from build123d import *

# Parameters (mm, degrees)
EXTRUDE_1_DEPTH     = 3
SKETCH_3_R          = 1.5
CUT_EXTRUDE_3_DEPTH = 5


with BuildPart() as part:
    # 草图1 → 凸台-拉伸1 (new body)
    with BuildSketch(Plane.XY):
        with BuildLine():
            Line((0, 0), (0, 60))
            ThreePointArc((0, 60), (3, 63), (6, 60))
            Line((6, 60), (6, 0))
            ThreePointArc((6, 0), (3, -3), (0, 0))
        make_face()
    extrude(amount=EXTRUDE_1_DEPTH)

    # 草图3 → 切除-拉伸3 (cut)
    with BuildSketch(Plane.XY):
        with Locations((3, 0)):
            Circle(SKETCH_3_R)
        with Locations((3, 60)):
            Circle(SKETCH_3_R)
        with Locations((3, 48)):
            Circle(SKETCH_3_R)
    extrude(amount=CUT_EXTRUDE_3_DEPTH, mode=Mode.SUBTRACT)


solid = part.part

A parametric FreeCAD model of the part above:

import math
import FreeCAD as App
import Part
import Sketcher
from FreeCAD import Vector

doc = App.newDocument("Part")
body = doc.addObject("PartDesign::Body", "Body")

# Sketch on XY plane
sketch1 = body.newObject("Sketcher::SketchObject", "Sketch")
sketch1.AttachmentSupport = (doc.getObject("XY_Plane"), [""])
sketch1.MapMode = "FlatFace"
sketch1.addGeometry([
    Part.LineSegment(Vector(0, 60, 0), Vector(0, 0, 0)),
    Part.ArcOfCircle(Part.Circle(Vector(3, 0, 0), Vector(0, 0, 1), 3), math.radians(180), math.radians(360)),
    Part.LineSegment(Vector(6, 0, 0), Vector(6, 60, 0)),
    Part.ArcOfCircle(Part.Circle(Vector(3, 60, 0), Vector(0, 0, 1), 3), math.radians(0), math.radians(180)),
], False)
sketch1.addConstraint([
    Sketcher.Constraint("Tangent", 0, 2, 1, 1),
    Sketcher.Constraint("Tangent", 1, 2, 2, 1),
    Sketcher.Constraint("Tangent", 2, 2, 3, 1),
    Sketcher.Constraint("Tangent", 3, 2, 0, 1),
    Sketcher.Constraint("Vertical", 0),
    Sketcher.Constraint("Vertical", 2),
    Sketcher.Constraint("Coincident", 0, 2, -1, 1),
    Sketcher.Constraint("Radius", 1, 3.0),
    Sketcher.Constraint("DistanceY", 0, 2, 0, 1, 60.0),
])
pad1 = body.newObject("PartDesign::Pad", "Pad")
pad1.Profile = sketch1
pad1.Length = 3

# Sketch on XY plane
sketch2 = body.newObject("Sketcher::SketchObject", "Sketch001")
sketch2.AttachmentSupport = (doc.getObject("XY_Plane"), [""])
sketch2.MapMode = "FlatFace"
sketch2.addGeometry([
    Part.Circle(Vector(3, 0, 0), Vector(0, 0, 1), 1.5),
    Part.Circle(Vector(3, 60, 0), Vector(0, 0, 1), 1.5),
    Part.Circle(Vector(3, 48, 0), Vector(0, 0, 1), 1.5),
], False)
sketch2.addConstraint([
    Sketcher.Constraint("Equal", 0, 1),
    Sketcher.Constraint("Equal", 1, 2),
    Sketcher.Constraint("PointOnObject", 0, 3, -1),
    Sketcher.Constraint("Vertical", 0, 3, 1, 3),
    Sketcher.Constraint("Vertical", 1, 3, 2, 3),
    Sketcher.Constraint("Diameter", 0, 3.0),
    Sketcher.Constraint("DistanceX", -1, 1, 0, 3, 3.0),
    Sketcher.Constraint("DistanceY", -1, 1, 1, 3, 60.0),
    Sketcher.Constraint("DistanceY", -1, 1, 2, 3, 48.0),
])
pocket1 = body.newObject("PartDesign::Pocket", "Pocket")
pocket1.Profile = sketch2
pocket1.Length = 5
pocket1.Reversed = True

doc.recompute()
